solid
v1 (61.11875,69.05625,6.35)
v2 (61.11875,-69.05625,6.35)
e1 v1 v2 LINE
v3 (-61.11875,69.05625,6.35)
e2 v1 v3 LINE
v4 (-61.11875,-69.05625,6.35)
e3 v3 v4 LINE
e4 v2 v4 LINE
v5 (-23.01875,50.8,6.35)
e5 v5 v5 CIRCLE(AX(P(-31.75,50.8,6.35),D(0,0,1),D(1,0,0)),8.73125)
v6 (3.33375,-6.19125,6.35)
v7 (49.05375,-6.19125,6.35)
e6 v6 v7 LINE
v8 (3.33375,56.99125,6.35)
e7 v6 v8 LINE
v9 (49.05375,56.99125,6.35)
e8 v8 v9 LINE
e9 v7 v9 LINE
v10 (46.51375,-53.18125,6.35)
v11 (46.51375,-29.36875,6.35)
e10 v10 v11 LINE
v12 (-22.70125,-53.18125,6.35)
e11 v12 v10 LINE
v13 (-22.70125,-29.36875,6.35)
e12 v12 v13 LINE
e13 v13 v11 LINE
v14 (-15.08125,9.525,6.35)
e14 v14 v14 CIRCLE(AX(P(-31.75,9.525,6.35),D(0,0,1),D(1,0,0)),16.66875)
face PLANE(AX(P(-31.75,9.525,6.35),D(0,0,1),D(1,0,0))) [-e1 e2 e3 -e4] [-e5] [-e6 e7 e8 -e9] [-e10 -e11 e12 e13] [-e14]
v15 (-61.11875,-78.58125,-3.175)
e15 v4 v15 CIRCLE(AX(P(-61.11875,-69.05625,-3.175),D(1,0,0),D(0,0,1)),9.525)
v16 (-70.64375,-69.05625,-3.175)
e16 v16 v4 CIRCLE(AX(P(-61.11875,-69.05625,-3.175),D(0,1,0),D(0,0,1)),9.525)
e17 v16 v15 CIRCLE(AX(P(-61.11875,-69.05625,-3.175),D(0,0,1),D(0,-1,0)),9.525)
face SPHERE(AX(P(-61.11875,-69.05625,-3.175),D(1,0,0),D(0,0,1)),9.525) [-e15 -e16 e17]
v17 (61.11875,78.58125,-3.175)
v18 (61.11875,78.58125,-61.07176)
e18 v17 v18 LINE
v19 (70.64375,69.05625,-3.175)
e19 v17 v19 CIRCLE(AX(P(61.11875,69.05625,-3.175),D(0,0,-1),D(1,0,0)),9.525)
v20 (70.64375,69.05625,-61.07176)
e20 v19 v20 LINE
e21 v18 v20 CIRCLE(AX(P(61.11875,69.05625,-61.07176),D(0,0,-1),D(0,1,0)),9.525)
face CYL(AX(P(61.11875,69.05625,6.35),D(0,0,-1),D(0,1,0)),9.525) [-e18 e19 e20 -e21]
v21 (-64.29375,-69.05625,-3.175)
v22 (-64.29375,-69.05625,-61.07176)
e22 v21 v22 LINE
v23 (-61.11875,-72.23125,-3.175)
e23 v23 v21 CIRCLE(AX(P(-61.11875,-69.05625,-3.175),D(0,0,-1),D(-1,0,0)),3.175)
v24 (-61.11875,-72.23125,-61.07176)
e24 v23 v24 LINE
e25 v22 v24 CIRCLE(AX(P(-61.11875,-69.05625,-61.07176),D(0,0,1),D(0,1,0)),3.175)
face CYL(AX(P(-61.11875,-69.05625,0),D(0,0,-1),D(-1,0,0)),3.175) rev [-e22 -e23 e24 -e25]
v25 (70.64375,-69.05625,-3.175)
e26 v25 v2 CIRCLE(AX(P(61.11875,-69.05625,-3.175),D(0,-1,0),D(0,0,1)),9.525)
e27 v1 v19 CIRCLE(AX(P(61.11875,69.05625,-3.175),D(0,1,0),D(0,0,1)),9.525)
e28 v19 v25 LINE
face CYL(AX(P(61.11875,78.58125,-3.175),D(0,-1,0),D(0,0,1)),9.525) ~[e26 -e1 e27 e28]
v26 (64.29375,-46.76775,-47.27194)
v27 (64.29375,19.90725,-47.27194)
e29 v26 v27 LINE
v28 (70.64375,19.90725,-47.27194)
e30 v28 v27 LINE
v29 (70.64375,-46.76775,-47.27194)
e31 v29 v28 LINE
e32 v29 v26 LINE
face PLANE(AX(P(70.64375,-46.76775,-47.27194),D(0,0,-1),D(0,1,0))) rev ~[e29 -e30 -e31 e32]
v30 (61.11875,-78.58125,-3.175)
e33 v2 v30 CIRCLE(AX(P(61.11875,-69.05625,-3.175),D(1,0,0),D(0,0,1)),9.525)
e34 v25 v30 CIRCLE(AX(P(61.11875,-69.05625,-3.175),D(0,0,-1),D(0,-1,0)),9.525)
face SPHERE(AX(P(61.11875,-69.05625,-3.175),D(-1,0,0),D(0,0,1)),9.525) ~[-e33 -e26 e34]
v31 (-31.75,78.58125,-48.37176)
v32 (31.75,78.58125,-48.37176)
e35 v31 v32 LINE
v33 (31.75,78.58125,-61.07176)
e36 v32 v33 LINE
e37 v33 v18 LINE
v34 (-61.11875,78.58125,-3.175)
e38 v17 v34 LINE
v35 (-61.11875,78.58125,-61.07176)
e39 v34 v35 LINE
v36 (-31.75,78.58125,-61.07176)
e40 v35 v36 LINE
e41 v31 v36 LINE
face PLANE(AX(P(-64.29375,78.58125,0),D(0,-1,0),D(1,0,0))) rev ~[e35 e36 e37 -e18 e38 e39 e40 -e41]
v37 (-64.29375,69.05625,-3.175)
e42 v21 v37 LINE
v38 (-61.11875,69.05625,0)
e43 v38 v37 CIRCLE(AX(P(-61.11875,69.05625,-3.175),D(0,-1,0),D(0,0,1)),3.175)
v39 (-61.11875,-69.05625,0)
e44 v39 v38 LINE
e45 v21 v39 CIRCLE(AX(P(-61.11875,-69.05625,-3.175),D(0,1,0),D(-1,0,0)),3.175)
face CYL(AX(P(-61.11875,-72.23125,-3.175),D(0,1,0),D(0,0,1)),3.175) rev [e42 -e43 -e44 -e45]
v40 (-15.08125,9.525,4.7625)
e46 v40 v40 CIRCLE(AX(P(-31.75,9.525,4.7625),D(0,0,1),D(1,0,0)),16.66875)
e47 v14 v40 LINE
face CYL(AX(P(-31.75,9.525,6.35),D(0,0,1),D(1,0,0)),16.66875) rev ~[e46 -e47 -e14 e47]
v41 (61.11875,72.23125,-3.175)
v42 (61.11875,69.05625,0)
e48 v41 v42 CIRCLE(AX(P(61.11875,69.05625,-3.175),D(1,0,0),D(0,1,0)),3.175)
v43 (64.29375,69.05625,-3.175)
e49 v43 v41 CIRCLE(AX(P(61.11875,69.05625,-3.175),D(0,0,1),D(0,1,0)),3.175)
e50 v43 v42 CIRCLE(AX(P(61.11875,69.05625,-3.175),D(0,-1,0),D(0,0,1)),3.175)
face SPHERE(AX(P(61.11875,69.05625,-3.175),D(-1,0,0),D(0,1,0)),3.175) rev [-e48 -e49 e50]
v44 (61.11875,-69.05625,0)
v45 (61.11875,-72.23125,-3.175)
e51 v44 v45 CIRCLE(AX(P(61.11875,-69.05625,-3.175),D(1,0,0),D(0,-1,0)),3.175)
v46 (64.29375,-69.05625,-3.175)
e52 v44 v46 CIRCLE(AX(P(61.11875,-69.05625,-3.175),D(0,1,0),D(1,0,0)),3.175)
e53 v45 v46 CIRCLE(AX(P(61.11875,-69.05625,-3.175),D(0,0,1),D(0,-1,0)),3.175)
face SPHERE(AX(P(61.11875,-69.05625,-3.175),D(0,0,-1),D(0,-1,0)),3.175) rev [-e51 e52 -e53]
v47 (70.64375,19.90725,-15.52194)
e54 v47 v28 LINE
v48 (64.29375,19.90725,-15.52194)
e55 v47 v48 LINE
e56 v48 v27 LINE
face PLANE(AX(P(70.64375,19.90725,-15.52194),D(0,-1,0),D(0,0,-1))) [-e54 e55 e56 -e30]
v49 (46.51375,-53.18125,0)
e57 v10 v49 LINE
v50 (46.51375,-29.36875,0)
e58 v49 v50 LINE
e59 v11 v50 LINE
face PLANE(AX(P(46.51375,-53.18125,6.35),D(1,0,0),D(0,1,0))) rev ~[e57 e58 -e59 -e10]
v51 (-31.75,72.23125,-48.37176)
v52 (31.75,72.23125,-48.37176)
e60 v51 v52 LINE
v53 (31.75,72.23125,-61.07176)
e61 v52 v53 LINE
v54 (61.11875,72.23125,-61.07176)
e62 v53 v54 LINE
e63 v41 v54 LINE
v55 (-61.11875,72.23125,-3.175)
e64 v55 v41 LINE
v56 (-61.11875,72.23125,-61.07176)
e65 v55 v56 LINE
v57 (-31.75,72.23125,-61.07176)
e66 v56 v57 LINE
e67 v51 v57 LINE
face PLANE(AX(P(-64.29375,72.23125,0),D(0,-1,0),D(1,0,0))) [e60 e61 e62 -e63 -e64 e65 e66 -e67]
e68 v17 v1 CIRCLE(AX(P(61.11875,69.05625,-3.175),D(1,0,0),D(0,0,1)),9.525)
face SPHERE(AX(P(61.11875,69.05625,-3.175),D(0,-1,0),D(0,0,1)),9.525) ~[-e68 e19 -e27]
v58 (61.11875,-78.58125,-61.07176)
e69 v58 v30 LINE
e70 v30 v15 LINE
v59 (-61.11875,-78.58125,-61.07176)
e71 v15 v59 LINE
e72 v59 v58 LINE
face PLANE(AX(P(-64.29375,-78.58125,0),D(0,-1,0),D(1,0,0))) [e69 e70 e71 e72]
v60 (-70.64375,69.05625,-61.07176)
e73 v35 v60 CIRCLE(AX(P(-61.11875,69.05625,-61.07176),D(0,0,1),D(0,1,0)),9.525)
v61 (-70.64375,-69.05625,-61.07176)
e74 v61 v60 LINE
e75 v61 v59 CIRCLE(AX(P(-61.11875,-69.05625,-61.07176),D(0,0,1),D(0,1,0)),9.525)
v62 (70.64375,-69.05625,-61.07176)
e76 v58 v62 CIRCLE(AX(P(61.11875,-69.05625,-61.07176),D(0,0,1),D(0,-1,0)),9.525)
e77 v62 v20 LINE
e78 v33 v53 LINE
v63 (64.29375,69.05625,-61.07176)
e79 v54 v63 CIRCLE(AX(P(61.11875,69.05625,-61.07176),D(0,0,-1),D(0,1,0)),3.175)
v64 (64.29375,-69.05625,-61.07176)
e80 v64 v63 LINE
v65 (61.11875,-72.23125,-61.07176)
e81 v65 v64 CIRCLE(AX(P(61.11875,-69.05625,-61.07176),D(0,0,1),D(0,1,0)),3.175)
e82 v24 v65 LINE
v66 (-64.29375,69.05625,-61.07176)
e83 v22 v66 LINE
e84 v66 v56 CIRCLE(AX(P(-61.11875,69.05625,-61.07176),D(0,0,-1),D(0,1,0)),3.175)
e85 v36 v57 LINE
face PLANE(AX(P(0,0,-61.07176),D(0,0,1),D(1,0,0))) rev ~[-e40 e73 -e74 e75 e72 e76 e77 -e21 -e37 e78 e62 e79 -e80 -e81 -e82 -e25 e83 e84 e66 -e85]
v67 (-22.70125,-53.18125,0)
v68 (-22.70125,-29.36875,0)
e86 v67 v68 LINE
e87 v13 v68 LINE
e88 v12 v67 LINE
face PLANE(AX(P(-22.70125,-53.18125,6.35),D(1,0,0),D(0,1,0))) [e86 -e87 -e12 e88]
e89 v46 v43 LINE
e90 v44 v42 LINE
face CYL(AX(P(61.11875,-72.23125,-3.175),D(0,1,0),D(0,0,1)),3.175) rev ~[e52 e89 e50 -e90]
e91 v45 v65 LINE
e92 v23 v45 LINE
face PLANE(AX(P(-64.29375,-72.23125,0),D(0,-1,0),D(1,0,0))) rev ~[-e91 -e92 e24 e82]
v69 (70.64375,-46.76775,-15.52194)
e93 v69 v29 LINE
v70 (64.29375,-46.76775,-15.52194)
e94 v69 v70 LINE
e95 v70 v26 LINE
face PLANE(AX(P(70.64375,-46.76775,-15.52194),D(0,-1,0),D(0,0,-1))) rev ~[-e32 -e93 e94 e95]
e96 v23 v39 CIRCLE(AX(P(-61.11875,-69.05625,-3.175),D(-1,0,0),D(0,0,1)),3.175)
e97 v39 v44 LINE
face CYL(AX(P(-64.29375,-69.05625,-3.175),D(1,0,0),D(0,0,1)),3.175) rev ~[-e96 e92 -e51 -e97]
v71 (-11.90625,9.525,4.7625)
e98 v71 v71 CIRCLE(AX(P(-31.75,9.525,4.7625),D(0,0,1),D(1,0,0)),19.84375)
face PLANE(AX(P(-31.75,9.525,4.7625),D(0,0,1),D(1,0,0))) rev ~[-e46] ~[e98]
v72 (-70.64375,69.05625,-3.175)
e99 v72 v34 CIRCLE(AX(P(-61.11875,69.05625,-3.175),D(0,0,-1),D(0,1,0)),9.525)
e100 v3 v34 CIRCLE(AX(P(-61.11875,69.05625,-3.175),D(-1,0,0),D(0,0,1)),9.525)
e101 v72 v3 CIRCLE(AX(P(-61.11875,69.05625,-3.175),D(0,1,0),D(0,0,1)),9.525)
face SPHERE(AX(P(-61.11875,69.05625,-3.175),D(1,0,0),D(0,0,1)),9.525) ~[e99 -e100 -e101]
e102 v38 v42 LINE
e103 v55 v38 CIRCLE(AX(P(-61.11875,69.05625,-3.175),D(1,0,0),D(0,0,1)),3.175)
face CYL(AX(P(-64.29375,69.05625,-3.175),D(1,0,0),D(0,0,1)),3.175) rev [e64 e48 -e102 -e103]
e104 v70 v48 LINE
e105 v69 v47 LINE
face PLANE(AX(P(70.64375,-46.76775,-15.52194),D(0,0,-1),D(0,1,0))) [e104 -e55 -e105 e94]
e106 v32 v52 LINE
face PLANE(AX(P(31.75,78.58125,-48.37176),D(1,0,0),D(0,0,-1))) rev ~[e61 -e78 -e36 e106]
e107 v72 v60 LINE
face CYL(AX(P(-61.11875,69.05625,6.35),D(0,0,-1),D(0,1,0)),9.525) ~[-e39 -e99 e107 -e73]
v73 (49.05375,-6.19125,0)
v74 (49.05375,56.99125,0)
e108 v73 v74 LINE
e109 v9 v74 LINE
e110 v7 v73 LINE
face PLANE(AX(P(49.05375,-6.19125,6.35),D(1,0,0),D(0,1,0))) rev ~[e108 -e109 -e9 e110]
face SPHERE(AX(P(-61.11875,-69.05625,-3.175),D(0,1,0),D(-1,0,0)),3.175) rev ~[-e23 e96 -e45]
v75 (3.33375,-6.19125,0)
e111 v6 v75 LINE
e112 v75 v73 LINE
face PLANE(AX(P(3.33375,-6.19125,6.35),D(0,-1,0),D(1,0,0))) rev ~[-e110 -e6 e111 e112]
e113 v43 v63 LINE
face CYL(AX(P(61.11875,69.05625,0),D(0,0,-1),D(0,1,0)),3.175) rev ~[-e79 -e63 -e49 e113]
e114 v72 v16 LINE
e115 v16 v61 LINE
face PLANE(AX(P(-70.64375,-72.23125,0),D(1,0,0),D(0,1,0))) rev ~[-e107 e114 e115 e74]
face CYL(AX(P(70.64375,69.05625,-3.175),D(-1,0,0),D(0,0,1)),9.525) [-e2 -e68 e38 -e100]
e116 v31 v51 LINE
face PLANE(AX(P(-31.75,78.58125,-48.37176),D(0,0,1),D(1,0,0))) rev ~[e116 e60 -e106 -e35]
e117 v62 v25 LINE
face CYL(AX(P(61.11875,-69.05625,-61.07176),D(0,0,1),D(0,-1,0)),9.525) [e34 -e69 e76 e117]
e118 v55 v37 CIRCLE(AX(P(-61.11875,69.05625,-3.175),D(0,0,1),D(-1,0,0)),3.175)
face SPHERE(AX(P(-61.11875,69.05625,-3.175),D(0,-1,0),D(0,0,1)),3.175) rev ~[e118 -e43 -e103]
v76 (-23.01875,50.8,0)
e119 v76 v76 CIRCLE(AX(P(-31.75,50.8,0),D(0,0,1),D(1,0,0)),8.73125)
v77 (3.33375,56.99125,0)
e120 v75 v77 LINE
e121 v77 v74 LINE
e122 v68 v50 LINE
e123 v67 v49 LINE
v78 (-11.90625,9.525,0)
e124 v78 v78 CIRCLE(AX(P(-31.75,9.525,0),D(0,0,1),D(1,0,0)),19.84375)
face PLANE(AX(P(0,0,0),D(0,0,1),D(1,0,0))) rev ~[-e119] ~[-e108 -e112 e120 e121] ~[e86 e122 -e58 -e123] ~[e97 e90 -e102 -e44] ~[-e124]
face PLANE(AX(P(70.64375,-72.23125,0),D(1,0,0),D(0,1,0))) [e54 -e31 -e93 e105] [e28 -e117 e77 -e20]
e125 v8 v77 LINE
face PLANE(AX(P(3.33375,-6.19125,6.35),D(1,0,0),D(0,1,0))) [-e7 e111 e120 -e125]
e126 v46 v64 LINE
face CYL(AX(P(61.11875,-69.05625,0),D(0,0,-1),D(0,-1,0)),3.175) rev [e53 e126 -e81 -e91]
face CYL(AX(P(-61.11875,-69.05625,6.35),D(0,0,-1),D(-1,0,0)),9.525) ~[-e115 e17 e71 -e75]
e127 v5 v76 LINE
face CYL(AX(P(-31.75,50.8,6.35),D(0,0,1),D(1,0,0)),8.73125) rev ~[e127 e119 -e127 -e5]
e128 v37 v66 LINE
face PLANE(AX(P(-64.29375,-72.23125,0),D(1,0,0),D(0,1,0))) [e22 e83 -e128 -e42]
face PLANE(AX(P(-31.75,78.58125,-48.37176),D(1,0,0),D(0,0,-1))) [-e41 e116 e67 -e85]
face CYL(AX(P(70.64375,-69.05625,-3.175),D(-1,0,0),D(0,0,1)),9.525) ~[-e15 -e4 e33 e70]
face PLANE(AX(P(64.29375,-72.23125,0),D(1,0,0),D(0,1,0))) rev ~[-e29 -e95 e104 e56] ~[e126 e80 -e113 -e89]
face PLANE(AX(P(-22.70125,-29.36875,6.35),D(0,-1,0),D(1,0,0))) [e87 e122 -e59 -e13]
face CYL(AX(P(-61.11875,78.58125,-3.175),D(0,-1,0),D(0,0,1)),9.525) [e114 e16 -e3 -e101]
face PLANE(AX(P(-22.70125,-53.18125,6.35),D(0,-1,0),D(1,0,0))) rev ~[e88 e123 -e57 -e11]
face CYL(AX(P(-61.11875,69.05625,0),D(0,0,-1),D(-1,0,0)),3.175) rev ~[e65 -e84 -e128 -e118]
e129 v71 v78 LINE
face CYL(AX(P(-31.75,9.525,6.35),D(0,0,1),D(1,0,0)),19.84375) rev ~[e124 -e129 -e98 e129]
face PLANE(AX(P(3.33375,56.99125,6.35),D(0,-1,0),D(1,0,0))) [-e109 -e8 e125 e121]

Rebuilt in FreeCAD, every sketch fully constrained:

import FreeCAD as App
import Part
import Sketcher

V = App.Vector
Q = App.Units.Quantity


def edges_at(feature, points):
    """Names of the edges that pass closest to the given points."""
    edges = feature.Shape.Edges
    near = lambda p: min(range(len(edges)), key=lambda i: edges[i].distToShape(Part.Vertex(*p))[0])
    return sorted({f"Edge{near(p) + 1}" for p in points})


def faces_at(feature, points):
    """Names of the faces that lie closest to the given points."""
    faces = feature.Shape.Faces
    near = lambda p: min(range(len(faces)), key=lambda i: faces[i].distToShape(Part.Vertex(*p))[0])
    return sorted({f"Face{near(p) + 1}" for p in points})

doc = App.newDocument("Part")
body = doc.addObject("PartDesign::Body", "Body")

sketch1 = doc.addObject("Sketcher::SketchObject", "Sketch")
body.addObject(sketch1)
sketch1.AttachmentSupport = (doc.XY_Plane, [""])
sketch1.MapMode = "FlatFace"
sketch1.addGeometry([
    Part.LineSegment(V(-64.29375, 72.23125, 0), V(-64.29375, -72.23125, 0)),
    Part.LineSegment(V(-64.29375, -72.23125, 0), V(64.29375, -72.23125, 0)),
    Part.LineSegment(V(64.29375, -72.23125, 0), V(64.29375, 72.23125, 0)),
    Part.LineSegment(V(64.29375, 72.23125, 0), V(-64.29375, 72.23125, 0)),
], False)
sketch1.addConstraint([
    Sketcher.Constraint("Coincident", 0, 2, 1, 1),
    Sketcher.Constraint("Coincident", 1, 2, 2, 1),
    Sketcher.Constraint("Coincident", 2, 2, 3, 1),
    Sketcher.Constraint("Coincident", 3, 2, 0, 1),
    Sketcher.Constraint("Vertical", 0),
    Sketcher.Constraint("Horizontal", 1),
    Sketcher.Constraint("Vertical", 2),
    Sketcher.Constraint("Horizontal", 3),
    Sketcher.Constraint("Symmetric", 0, 2, 2, 2, -1, 1),
    Sketcher.Constraint("DistanceX", 1, 1, 1, 2, Q("5.0625 in")),
    Sketcher.Constraint("DistanceY", 0, 2, 0, 1, Q("5.6875 in")),
])
pad1 = doc.addObject("PartDesign::Pad", "Pad")
body.addObject(pad1)
pad1.Profile = sketch1
pad1.Length = Q("2.4044 in")
pad1.Reversed = True
doc.recompute()

thickness = doc.addObject("PartDesign::Thickness", "Thickness")
body.addObject(thickness)
thickness.Base = (pad1, faces_at(pad1, [(0, 0, -61.072)]))
thickness.Value = Q("0.25 in")
thickness.Reversed = False
thickness.Join = "Intersection"

sketch2 = doc.addObject("Sketcher::SketchObject", "Sketch001")
body.addObject(sketch2)
sketch2.AttachmentSupport = (doc.XY_Plane, [""])
sketch2.MapMode = "FlatFace"
sketch2.AttachmentOffset = App.Placement(V(0, 0, 0.25 * 25.4), App.Rotation())
sketch2.addGeometry([
    Part.Circle(V(-31.75, 50.8, 0), V(0, 0, 1), 8.73125),
    Part.Circle(V(-31.75, 9.525, 0), V(0, 0, 1), 19.84375),
    Part.LineSegment(V(3.33375, 56.99125, 0), V(3.33375, -6.19125, 0)),
    Part.LineSegment(V(3.33375, -6.19125, 0), V(49.05375, -6.19125, 0)),
    Part.LineSegment(V(49.05375, -6.19125, 0), V(49.05375, 56.99125, 0)),
    Part.LineSegment(V(49.05375, 56.99125, 0), V(3.33375, 56.99125, 0)),
    Part.LineSegment(V(-22.70125, -29.36875, 0), V(-22.70125, -53.18125, 0)),
    Part.LineSegment(V(-22.70125, -53.18125, 0), V(46.51375, -53.18125, 0)),
    Part.LineSegment(V(46.51375, -53.18125, 0), V(46.51375, -29.36875, 0)),
    Part.LineSegment(V(46.51375, -29.36875, 0), V(-22.70125, -29.36875, 0)),
], False)
sketch2.addConstraint([
    Sketcher.Constraint("Coincident", 2, 2, 3, 1),
    Sketcher.Constraint("Coincident", 3, 2, 4, 1),
    Sketcher.Constraint("Coincident", 4, 2, 5, 1),
    Sketcher.Constraint("Coincident", 5, 2, 2, 1),
    Sketcher.Constraint("Coincident", 6, 2, 7, 1),
    Sketcher.Constraint("Coincident", 7, 2, 8, 1),
    Sketcher.Constraint("Coincident", 8, 2, 9, 1),
    Sketcher.Constraint("Coincident", 9, 2, 6, 1),
    Sketcher.Constraint("Vertical", 2),
    Sketcher.Constraint("Horizontal", 3),
    Sketcher.Constraint("Vertical", 4),
    Sketcher.Constraint("Horizontal", 5),
    Sketcher.Constraint("Vertical", 6),
    Sketcher.Constraint("Horizontal", 7),
    Sketcher.Constraint("Vertical", 8),
    Sketcher.Constraint("Horizontal", 9),
    Sketcher.Constraint("Vertical", 0, 3, 1, 3),
    Sketcher.Constraint("Diameter", 0, Q("0.6875 in")),
    Sketcher.Constraint("Diameter", 1, Q("1.5625 in")),
    Sketcher.Constraint("DistanceX", 3, 1, 3, 2, Q("1.8 in")),
    Sketcher.Constraint("DistanceY", -1, 1, 0, 3, Q("2 in")),
    Sketcher.Constraint("DistanceX", 7, 2, 3, 2, Q("0.1 in")),
    Sketcher.Constraint("DistanceY", 8, 2, 4, 2, Q("3.4 in")),
    Sketcher.Constraint("DistanceX", 7, 1, 7, 2, Q("2.725 in")),
    Sketcher.Constraint("DistanceY", 6, 2, 6, 1, Q("0.9375 in")),
    Sketcher.Constraint("DistanceX", 0, 3, -1, 1, Q("1.25 in")),
    Sketcher.Constraint("DistanceY", 6, 2, 2, 2, Q("1.85 in")),
    Sketcher.Constraint("DistanceY", -1, 1, 1, 3, Q("0.375 in")),
    Sketcher.Constraint("DistanceY", 6, 2, -1, 1, Q("2.09375 in")),
    Sketcher.Constraint("DistanceX", -1, 1, 2, 2, Q("3.33375 mm")),
])
pocket1 = doc.addObject("PartDesign::Pocket", "Pocket")
body.addObject(pocket1)
pocket1.Profile = sketch2
pocket1.Type = "ThroughAll"

sketch3 = doc.addObject("Sketcher::SketchObject", "Sketch002")
body.addObject(sketch3)
sketch3.AttachmentSupport = (doc.YZ_Plane, [""])
sketch3.MapMode = "FlatFace"
sketch3.AttachmentOffset = App.Placement(V(0, 0, 2.78125 * 25.4), App.Rotation())
sketch3.addGeometry([
    Part.LineSegment(V(19.90725, -15.52194, 0), V(-46.76775, -15.52194, 0)),
    Part.LineSegment(V(-46.76775, -15.52194, 0), V(-46.76775, -47.27194, 0)),
    Part.LineSegment(V(-46.76775, -47.27194, 0), V(19.90725, -47.27194, 0)),
    Part.LineSegment(V(19.90725, -47.27194, 0), V(19.90725, -15.52194, 0)),
], False)
sketch3.addConstraint([
    Sketcher.Constraint("Coincident", 0, 2, 1, 1),
    Sketcher.Constraint("Coincident", 1, 2, 2, 1),
    Sketcher.Constraint("Coincident", 2, 2, 3, 1),
    Sketcher.Constraint("Coincident", 3, 2, 0, 1),
    Sketcher.Constraint("Horizontal", 0),
    Sketcher.Constraint("Vertical", 1),
    Sketcher.Constraint("Horizontal", 2),
    Sketcher.Constraint("Vertical", 3),
    Sketcher.Constraint("DistanceY", 1, 2, 1, 1, Q("1.25 in")),
    Sketcher.Constraint("DistanceX", 0, 2, 0, 1, Q("2.625 in")),
    Sketcher.Constraint("DistanceY", 0, 2, -1, 1, Q("0.6111 in")),
    Sketcher.Constraint("DistanceX", 0, 2, -1, 1, Q("46.76775 mm")),
])
pocket2 = doc.addObject("PartDesign::Pocket", "Pocket001")
body.addObject(pocket2)
pocket2.Profile = sketch3
pocket2.Length = Q("0.25 in")

sketch4 = doc.addObject("Sketcher::SketchObject", "Sketch003")
body.addObject(sketch4)
sketch4.AttachmentSupport = (doc.XY_Plane, [""])
sketch4.MapMode = "FlatFace"
sketch4.AttachmentOffset = App.Placement(V(0, 0, 0.25 * 25.4), App.Rotation())
sketch4.addGeometry([
    Part.Circle(V(-31.75, 9.525, 0), V(0, 0, 1), 19.84375),
    Part.Circle(V(-31.75, 9.525, 0), V(0, 0, 1), 16.66875),
], False)
sketch4.addConstraint([
    Sketcher.Constraint("Coincident", 1, 3, 0, 3),
    Sketcher.Constraint("Diameter", 0, Q("1.5625 in")),
    Sketcher.Constraint("Diameter", 1, Q("1.3125 in")),
    Sketcher.Constraint("DistanceX", 0, 3, -1, 1, Q("1.25 in")),
    Sketcher.Constraint("DistanceY", -1, 1, 0, 3, Q("0.375 in")),
])
pad2 = doc.addObject("PartDesign::Pad", "Pad001")
body.addObject(pad2)
pad2.Profile = sketch4
pad2.Length = Q("0.0625 in")
pad2.Reversed = True

sketch5 = doc.addObject("Sketcher::SketchObject", "Sketch004")
body.addObject(sketch5)
sketch5.AttachmentSupport = (doc.XZ_Plane, [""])
sketch5.MapMode = "FlatFace"
sketch5.AttachmentOffset = App.Placement(V(0, 0, -3.09375 * 25.4), App.Rotation())
sketch5.addGeometry([
    Part.LineSegment(V(-31.75, -61.07176, 0), V(-31.75, -48.37176, 0)),
    Part.LineSegment(V(-31.75, -48.37176, 0), V(31.75, -48.37176, 0)),
    Part.LineSegment(V(31.75, -48.37176, 0), V(31.75, -61.07176, 0)),
    Part.LineSegment(V(31.75, -61.07176, 0), V(-31.75, -61.07176, 0)),
], False)
sketch5.addConstraint([
    Sketcher.Constraint("Coincident", 0, 2, 1, 1),
    Sketcher.Constraint("Coincident", 1, 2, 2, 1),
    Sketcher.Constraint("Coincident", 2, 2, 3, 1),
    Sketcher.Constraint("Coincident", 3, 2, 0, 1),
    Sketcher.Constraint("Vertical", 0),
    Sketcher.Constraint("Horizontal", 1),
    Sketcher.Constraint("Vertical", 2),
    Sketcher.Constraint("Horizontal", 3),
    Sketcher.Constraint("DistanceX", 1, 1, 1, 2, Q("2.5 in")),
    Sketcher.Constraint("DistanceY", 0, 1, 0, 2, Q("0.5 in")),
    Sketcher.Constraint("DistanceX", 0, 2, -1, 1, Q("1.25 in")),
    Sketcher.Constraint("DistanceY", 0, 2, -1, 1, Q("1.9044 in")),
])
pocket3 = doc.addObject("PartDesign::Pocket", "Pocket002")
body.addObject(pocket3)
pocket3.Profile = sketch5
pocket3.Length = Q("0.25 in")
pocket3.Reversed = True
doc.recompute()

fillet = doc.addObject("PartDesign::Fillet", "Fillet")
body.addObject(fillet)
fillet.Base = (pocket3, edges_at(pocket3, [
    (0, -78.581, 6.35),
    (70.644, 0, 6.35),
    (0, 78.581, 6.35),
    (-70.644, 0, 6.35),
    (-70.644, -78.581, -27.361),
    (70.644, -78.581, -27.361),
    (70.644, 78.581, -27.361),
    (-70.644, 78.581, -27.361),
]))
fillet.Radius = Q("0.375 in")
doc.recompute()

fillet2 = doc.addObject("PartDesign::Fillet", "Fillet001")
body.addObject(fillet2)
fillet2.Base = (fillet, edges_at(fillet, [
    (-64.294, 0, 0),
    (-64.294, -72.231, -30.536),
    (0, 72.231, 0),
    (-64.294, 72.231, -30.536),
    (64.294, 72.231, -30.536),
    (64.294, -72.231, -30.536),
    (0, -72.231, 0),
    (64.294, 0, 0),
]))
fillet2.Radius = Q("0.125 in")

doc.recompute()
